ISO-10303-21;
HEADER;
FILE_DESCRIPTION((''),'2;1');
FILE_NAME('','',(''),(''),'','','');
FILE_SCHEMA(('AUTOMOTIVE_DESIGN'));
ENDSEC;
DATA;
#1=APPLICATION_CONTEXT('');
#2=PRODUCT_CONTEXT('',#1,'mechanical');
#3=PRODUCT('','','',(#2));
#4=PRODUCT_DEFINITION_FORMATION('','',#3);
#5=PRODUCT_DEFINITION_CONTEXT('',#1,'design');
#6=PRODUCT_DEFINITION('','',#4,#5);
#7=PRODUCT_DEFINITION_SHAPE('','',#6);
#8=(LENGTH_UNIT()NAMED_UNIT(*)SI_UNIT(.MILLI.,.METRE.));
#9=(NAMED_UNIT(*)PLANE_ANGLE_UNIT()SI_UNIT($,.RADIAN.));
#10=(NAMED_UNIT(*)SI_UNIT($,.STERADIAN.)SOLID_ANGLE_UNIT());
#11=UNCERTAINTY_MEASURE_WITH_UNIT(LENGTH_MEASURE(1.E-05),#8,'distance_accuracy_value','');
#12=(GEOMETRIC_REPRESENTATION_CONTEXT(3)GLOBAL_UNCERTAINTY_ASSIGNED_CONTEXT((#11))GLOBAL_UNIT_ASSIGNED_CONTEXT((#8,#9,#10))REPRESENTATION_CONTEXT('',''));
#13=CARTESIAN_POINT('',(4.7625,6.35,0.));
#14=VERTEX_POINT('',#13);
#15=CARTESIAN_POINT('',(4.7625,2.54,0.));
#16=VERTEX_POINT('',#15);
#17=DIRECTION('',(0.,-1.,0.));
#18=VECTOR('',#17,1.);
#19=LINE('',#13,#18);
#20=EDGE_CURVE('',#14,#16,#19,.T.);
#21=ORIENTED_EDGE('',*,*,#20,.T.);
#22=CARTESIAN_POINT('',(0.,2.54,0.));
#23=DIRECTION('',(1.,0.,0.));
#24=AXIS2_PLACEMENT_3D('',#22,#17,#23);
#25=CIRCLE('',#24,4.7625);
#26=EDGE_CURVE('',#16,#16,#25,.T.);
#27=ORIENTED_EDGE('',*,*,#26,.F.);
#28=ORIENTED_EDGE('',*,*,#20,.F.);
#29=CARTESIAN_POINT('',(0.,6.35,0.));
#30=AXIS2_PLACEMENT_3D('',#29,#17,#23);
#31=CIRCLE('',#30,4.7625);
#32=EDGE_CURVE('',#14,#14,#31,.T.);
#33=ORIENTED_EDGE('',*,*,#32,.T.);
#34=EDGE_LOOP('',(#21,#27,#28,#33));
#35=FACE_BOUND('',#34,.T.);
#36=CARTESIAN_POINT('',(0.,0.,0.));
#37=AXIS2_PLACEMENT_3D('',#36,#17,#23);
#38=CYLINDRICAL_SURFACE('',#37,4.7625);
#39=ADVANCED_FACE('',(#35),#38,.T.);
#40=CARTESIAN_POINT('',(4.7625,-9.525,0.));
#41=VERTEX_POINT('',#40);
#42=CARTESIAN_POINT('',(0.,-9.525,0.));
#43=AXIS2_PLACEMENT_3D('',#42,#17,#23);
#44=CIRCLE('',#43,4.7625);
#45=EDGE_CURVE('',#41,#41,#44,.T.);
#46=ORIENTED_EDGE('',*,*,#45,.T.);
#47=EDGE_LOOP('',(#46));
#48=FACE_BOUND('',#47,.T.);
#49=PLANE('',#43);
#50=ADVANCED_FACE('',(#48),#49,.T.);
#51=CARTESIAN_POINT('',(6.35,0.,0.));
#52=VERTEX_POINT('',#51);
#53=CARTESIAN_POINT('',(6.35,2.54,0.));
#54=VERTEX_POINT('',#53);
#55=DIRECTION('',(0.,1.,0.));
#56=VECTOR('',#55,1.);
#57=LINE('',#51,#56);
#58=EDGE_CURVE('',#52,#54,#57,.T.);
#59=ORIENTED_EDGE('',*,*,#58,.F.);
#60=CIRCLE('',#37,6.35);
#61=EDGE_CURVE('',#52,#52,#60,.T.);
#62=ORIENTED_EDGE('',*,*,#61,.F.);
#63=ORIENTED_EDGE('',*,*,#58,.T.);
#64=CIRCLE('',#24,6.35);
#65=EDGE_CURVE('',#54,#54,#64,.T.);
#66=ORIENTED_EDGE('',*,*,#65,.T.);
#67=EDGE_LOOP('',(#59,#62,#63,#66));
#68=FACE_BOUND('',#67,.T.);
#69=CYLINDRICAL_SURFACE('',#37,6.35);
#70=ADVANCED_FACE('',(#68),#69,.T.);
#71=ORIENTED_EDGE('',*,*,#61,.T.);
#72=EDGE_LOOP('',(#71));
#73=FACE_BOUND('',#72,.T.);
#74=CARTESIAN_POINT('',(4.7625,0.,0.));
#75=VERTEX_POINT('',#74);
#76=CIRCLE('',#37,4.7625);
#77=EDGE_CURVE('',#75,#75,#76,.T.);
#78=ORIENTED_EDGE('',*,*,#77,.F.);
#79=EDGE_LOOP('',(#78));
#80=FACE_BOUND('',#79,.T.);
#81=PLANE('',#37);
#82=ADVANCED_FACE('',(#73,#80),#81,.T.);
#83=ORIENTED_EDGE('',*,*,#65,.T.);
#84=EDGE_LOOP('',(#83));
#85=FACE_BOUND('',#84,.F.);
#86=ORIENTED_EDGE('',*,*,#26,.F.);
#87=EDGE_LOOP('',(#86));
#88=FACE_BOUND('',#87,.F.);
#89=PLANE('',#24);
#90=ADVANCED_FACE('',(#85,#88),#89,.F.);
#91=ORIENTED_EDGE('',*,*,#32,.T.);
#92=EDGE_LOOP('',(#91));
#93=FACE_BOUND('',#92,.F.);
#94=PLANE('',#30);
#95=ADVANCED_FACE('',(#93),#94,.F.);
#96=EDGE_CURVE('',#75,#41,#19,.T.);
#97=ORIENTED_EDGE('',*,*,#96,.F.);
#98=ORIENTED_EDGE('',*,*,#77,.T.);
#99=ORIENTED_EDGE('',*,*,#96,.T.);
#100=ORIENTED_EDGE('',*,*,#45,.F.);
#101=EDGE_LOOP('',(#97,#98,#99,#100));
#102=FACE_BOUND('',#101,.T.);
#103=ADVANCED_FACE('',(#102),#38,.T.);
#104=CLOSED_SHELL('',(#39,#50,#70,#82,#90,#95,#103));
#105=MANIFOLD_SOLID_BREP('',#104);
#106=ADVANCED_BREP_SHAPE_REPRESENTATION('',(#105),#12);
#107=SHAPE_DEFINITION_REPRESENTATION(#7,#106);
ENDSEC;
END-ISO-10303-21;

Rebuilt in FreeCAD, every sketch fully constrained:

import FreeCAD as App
import Part
import Sketcher
Q = App.Units.Quantity

doc = App.newDocument("Part")
body = doc.addObject("PartDesign::Body", "Body")

# Sketch on XZ plane
sketch1 = doc.addObject("Sketcher::SketchObject", "Sketch")
body.addObject(sketch1)
sketch1.AttachmentSupport = (doc.XZ_Plane, [""])
sketch1.MapMode = "FlatFace"
sketch1.addGeometry(Part.Circle(App.Vector(0, 0, 0), App.Vector(0, 0, 1), 4.8), False)
sketch1.addConstraint([
    Sketcher.Constraint("Coincident", 0, 3, -1, 1),
    Sketcher.Constraint("Diameter", 0, Q("0.375 in")),
])
pad1 = doc.addObject("PartDesign::Pad", "Pad")
body.addObject(pad1)
pad1.Profile = sketch1
pad1.Type = "TwoLengths"
pad1.Length = Q("0.375 in")
pad1.Length2 = Q("0.25 in")

# Sketch on XZ plane
sketch2 = doc.addObject("Sketcher::SketchObject", "Sketch001")
body.addObject(sketch2)
sketch2.AttachmentSupport = (doc.XZ_Plane, [""])
sketch2.MapMode = "FlatFace"
sketch2.addGeometry(Part.Circle(App.Vector(0, 0, 0), App.Vector(0, 0, 1), 6), False)
sketch2.addConstraint([
    Sketcher.Constraint("Coincident", 0, 3, -1, 1),
    Sketcher.Constraint("Diameter", 0, Q("0.5 in")),
])
pad2 = doc.addObject("PartDesign::Pad", "Pad001")
body.addObject(pad2)
pad2.Profile = sketch2
pad2.Length = Q("0.1 in")
pad2.Reversed = True

doc.recompute()
